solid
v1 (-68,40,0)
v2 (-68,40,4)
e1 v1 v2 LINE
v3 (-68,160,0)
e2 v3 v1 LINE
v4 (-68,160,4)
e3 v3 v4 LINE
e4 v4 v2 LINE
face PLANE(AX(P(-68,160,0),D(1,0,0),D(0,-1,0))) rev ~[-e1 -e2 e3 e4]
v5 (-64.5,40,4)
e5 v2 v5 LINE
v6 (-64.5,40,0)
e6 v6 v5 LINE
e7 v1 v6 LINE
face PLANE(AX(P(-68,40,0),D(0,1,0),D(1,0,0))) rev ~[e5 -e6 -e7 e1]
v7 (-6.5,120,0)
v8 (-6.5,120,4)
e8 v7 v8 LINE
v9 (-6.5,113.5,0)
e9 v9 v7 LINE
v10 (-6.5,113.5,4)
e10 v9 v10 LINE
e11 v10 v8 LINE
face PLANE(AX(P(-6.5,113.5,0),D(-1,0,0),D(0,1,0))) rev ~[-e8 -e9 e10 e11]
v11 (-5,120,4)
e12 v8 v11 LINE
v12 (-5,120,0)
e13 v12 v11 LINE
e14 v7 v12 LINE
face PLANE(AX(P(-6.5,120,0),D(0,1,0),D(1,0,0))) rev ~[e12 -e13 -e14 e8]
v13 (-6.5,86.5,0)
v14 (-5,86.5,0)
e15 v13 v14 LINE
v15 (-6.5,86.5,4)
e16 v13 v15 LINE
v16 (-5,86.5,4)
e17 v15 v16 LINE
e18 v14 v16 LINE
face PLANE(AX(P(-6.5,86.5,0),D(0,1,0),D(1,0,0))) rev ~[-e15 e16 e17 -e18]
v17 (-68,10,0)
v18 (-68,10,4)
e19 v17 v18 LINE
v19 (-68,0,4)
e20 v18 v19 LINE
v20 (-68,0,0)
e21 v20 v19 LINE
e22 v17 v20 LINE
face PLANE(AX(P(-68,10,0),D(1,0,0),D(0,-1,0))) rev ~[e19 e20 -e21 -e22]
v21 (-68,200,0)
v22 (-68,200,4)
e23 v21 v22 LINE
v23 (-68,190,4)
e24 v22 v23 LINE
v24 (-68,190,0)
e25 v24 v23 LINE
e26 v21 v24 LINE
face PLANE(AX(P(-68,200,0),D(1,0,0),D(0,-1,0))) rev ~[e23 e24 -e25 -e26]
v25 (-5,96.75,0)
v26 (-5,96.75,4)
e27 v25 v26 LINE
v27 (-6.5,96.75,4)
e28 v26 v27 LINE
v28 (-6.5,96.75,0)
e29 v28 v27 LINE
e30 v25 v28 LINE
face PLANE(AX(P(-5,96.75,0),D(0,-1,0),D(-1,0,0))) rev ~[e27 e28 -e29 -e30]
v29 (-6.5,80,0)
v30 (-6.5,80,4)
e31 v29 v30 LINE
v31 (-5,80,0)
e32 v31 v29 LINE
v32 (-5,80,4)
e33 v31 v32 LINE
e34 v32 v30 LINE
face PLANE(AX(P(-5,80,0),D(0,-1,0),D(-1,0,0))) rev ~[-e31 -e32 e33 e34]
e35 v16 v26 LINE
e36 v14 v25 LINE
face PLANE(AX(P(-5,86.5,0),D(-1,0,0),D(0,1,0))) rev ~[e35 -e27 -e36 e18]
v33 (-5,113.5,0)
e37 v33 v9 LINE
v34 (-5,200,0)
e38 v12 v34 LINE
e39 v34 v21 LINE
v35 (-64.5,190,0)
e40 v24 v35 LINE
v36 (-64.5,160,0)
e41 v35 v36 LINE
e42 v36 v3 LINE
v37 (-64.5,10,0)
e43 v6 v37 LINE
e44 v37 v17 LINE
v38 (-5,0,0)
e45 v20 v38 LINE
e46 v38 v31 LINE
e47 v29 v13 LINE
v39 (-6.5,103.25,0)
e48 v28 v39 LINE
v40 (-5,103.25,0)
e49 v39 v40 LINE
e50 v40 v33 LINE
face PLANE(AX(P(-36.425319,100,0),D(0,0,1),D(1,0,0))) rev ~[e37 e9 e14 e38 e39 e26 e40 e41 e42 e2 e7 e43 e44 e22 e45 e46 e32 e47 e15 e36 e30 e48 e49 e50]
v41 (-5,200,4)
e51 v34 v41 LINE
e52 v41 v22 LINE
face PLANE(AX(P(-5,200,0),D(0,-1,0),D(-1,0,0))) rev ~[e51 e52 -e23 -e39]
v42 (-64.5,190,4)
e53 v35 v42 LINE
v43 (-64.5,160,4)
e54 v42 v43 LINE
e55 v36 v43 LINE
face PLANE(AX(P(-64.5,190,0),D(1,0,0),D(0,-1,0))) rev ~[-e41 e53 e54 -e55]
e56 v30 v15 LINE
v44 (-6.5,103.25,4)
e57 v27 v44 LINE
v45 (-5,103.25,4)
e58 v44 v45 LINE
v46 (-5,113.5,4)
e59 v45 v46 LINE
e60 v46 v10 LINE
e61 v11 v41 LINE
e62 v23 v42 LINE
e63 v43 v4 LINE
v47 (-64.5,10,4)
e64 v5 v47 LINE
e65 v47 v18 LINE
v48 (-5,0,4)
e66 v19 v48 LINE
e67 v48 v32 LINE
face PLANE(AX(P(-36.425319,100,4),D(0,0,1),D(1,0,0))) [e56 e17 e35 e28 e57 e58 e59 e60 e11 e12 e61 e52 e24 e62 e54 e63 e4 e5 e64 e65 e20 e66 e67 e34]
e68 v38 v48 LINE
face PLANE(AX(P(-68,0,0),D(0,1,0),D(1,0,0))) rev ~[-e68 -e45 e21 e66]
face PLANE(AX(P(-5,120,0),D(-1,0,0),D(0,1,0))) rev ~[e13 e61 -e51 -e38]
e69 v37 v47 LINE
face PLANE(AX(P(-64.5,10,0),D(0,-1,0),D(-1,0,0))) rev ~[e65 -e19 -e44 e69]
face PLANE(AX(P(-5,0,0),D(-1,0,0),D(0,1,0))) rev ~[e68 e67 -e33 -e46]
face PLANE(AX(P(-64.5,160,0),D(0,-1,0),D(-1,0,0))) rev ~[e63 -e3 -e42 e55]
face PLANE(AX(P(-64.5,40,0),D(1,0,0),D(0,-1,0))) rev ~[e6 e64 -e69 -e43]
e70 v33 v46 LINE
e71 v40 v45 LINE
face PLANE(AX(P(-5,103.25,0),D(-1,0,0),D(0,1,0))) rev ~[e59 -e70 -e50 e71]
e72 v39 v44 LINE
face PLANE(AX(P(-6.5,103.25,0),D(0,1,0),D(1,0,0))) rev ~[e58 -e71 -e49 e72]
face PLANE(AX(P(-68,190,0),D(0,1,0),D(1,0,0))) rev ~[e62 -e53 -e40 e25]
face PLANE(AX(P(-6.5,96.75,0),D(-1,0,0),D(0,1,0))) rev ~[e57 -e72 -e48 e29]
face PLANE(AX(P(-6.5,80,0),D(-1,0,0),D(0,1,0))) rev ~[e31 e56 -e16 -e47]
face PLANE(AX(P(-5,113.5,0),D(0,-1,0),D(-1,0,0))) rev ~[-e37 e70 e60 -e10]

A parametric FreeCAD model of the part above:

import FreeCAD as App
import Part
import Sketcher
from FreeCAD import Vector
Q = App.Units.Quantity

doc = App.newDocument("Part")
params = doc.addObject("Spreadsheet::Sheet", "Params")
for row, (alias, value) in enumerate([
    ("sketch1_width", "63 mm"),
    ("sketch1_height", "80 mm"),
    ("sketch1_height2", "10 mm"),
    ("sketch1_height3", "30 mm"),
    ("sketch1_height4", "120 mm"),
    ("pad1_length", "4 mm"),
], start=1):
    params.set(f"A{row}", alias)
    params.set(f"B{row}", "=" + value)
    params.setAlias(f"B{row}", alias)

body = doc.addObject("PartDesign::Body", "Body")

sketch1 = doc.addObject("Sketcher::SketchObject", "Sketch")
body.addObject(sketch1)
sketch1.AttachmentSupport = (doc.XY_Plane, [""])
sketch1.MapMode = "FlatFace"
sketch1.addGeometry(Part.LineSegment(Vector(-5, 120, 0), Vector(-5, 200, 0)), False)
sketch1.addGeometry(Part.LineSegment(Vector(-5, 200, 0), Vector(-68, 200, 0)), False)
sketch1.addGeometry(Part.LineSegment(Vector(-68, 200, 0), Vector(-68, 190, 0)), False)
sketch1.addGeometry(Part.LineSegment(Vector(-68, 190, 0), Vector(-64.5, 190, 0)), False)
sketch1.addGeometry(Part.LineSegment(Vector(-64.5, 190, 0), Vector(-64.5, 160, 0)), False)
sketch1.addGeometry(Part.LineSegment(Vector(-64.5, 160, 0), Vector(-68, 160, 0)), False)
sketch1.addGeometry(Part.LineSegment(Vector(-68, 160, 0), Vector(-68, 40, 0)), False)
sketch1.addGeometry(Part.LineSegment(Vector(-68, 40, 0), Vector(-64.5, 40, 0)), False)
sketch1.addGeometry(Part.LineSegment(Vector(-64.5, 40, 0), Vector(-64.5, 10, 0)), False)
sketch1.addGeometry(Part.LineSegment(Vector(-64.5, 10, 0), Vector(-68, 10, 0)), False)
sketch1.addGeometry(Part.LineSegment(Vector(-68, 10, 0), Vector(-68, 0, 0)), False)
sketch1.addGeometry(Part.LineSegment(Vector(-68, 0, 0), Vector(-5, 0, 0)), False)
sketch1.addGeometry(Part.LineSegment(Vector(-5, 0, 0), Vector(-5, 80, 0)), False)
sketch1.addGeometry(Part.LineSegment(Vector(-5, 80, 0), Vector(-6.5, 80, 0)), False)
sketch1.addGeometry(Part.LineSegment(Vector(-6.5, 80, 0), Vector(-6.5, 86.5, 0)), False)
sketch1.addGeometry(Part.LineSegment(Vector(-6.5, 86.5, 0), Vector(-5, 86.5, 0)), False)
sketch1.addGeometry(Part.LineSegment(Vector(-5, 86.5, 0), Vector(-5, 96.8, 0)), False)
sketch1.addGeometry(Part.LineSegment(Vector(-5, 96.8, 0), Vector(-6.5, 96.8, 0)), False)
sketch1.addGeometry(Part.LineSegment(Vector(-6.5, 96.8, 0), Vector(-6.5, 103.2, 0)), False)
sketch1.addGeometry(Part.LineSegment(Vector(-6.5, 103.2, 0), Vector(-5, 103.2, 0)), False)
sketch1.addGeometry(Part.LineSegment(Vector(-5, 103.2, 0), Vector(-5, 113.5, 0)), False)
sketch1.addGeometry(Part.LineSegment(Vector(-5, 113.5, 0), Vector(-6.5, 113.5, 0)), False)
sketch1.addGeometry(Part.LineSegment(Vector(-6.5, 113.5, 0), Vector(-6.5, 120, 0)), False)
sketch1.addGeometry(Part.LineSegment(Vector(-6.5, 120, 0), Vector(-5, 120, 0)), False)
sketch1.addConstraint(Sketcher.Constraint("Coincident", 0, 2, 1, 1))
sketch1.addConstraint(Sketcher.Constraint("Coincident", 1, 2, 2, 1))
sketch1.addConstraint(Sketcher.Constraint("Coincident", 2, 2, 3, 1))
sketch1.addConstraint(Sketcher.Constraint("Coincident", 3, 2, 4, 1))
sketch1.addConstraint(Sketcher.Constraint("Coincident", 4, 2, 5, 1))
sketch1.addConstraint(Sketcher.Constraint("Coincident", 5, 2, 6, 1))
sketch1.addConstraint(Sketcher.Constraint("Coincident", 6, 2, 7, 1))
sketch1.addConstraint(Sketcher.Constraint("Coincident", 7, 2, 8, 1))
sketch1.addConstraint(Sketcher.Constraint("Coincident", 8, 2, 9, 1))
sketch1.addConstraint(Sketcher.Constraint("Coincident", 9, 2, 10, 1))
sketch1.addConstraint(Sketcher.Constraint("Coincident", 10, 2, 11, 1))
sketch1.addConstraint(Sketcher.Constraint("Coincident", 11, 2, 12, 1))
sketch1.addConstraint(Sketcher.Constraint("Coincident", 12, 2, 13, 1))
sketch1.addConstraint(Sketcher.Constraint("Coincident", 13, 2, 14, 1))
sketch1.addConstraint(Sketcher.Constraint("Coincident", 14, 2, 15, 1))
sketch1.addConstraint(Sketcher.Constraint("Coincident", 15, 2, 16, 1))
sketch1.addConstraint(Sketcher.Constraint("Coincident", 16, 2, 17, 1))
sketch1.addConstraint(Sketcher.Constraint("Coincident", 17, 2, 18, 1))
sketch1.addConstraint(Sketcher.Constraint("Coincident", 18, 2, 19, 1))
sketch1.addConstraint(Sketcher.Constraint("Coincident", 19, 2, 20, 1))
sketch1.addConstraint(Sketcher.Constraint("Coincident", 20, 2, 21, 1))
sketch1.addConstraint(Sketcher.Constraint("Coincident", 21, 2, 22, 1))
sketch1.addConstraint(Sketcher.Constraint("Coincident", 22, 2, 23, 1))
sketch1.addConstraint(Sketcher.Constraint("Coincident", 23, 2, 0, 1))
sketch1.addConstraint(Sketcher.Constraint("Vertical", 0))
sketch1.addConstraint(Sketcher.Constraint("Horizontal", 1))
sketch1.addConstraint(Sketcher.Constraint("Vertical", 2))
sketch1.addConstraint(Sketcher.Constraint("Horizontal", 3))
sketch1.addConstraint(Sketcher.Constraint("Vertical", 4))
sketch1.addConstraint(Sketcher.Constraint("Horizontal", 5))
sketch1.addConstraint(Sketcher.Constraint("Vertical", 6))
sketch1.addConstraint(Sketcher.Constraint("Horizontal", 7))
sketch1.addConstraint(Sketcher.Constraint("Vertical", 8))
sketch1.addConstraint(Sketcher.Constraint("Horizontal", 9))
sketch1.addConstraint(Sketcher.Constraint("Vertical", 10))
sketch1.addConstraint(Sketcher.Constraint("Horizontal", 11))
sketch1.addConstraint(Sketcher.Constraint("Vertical", 12))
sketch1.addConstraint(Sketcher.Constraint("Horizontal", 13))
sketch1.addConstraint(Sketcher.Constraint("Vertical", 14))
sketch1.addConstraint(Sketcher.Constraint("Horizontal", 15))
sketch1.addConstraint(Sketcher.Constraint("Vertical", 16))
sketch1.addConstraint(Sketcher.Constraint("Horizontal", 17))
sketch1.addConstraint(Sketcher.Constraint("Vertical", 18))
sketch1.addConstraint(Sketcher.Constraint("Horizontal", 19))
sketch1.addConstraint(Sketcher.Constraint("Vertical", 20))
sketch1.addConstraint(Sketcher.Constraint("Horizontal", 21))
sketch1.addConstraint(Sketcher.Constraint("Vertical", 22))
sketch1.addConstraint(Sketcher.Constraint("Horizontal", 23))
sketch1.addConstraint(Sketcher.Constraint("PointOnObject", 10, 2, -1))
sketch1.addConstraint(Sketcher.Constraint("Vertical", 2, 2, 5, 2))
sketch1.addConstraint(Sketcher.Constraint("Vertical", 4, 2, 7, 2))
sketch1.addConstraint(Sketcher.Constraint("Vertical", 6, 2, 9, 2))
sketch1.addConstraint(Sketcher.Constraint("Vertical", 0, 2, 11, 2))
sketch1.addConstraint(Sketcher.Constraint("Vertical", 12, 2, 15, 2))
sketch1.addConstraint(Sketcher.Constraint("Vertical", 14, 2, 17, 2))
sketch1.addConstraint(Sketcher.Constraint("Vertical", 16, 2, 19, 2))
sketch1.addConstraint(Sketcher.Constraint("Vertical", 18, 2, 21, 2))
sketch1.addConstraint(Sketcher.Constraint("Equal", 4, 8))
sketch1.addConstraint(Sketcher.Constraint("Equal", 2, 10))
sketch1.addConstraint(Sketcher.Constraint("Equal", 0, 12))
sketch1.addConstraint(Sketcher.Constraint("Equal", 14, 18))
sketch1.addConstraint(Sketcher.Constraint("Equal", 16, 20))
sketch1.addConstraint(Sketcher.Constraint("Equal", 18, 22))
sketch1.addConstraint(Sketcher.Constraint("DistanceX", 1, 2, 1, 1, Q("63 mm")))
sketch1.addConstraint(Sketcher.Constraint("DistanceY", 0, 1, 0, 2, Q("80 mm")))
sketch1.addConstraint(Sketcher.Constraint("DistanceY", 2, 2, 2, 1, Q("10 mm")))
sketch1.addConstraint(Sketcher.Constraint("DistanceY", 4, 2, 4, 1, Q("30 mm")))
sketch1.addConstraint(Sketcher.Constraint("DistanceY", 6, 2, 6, 1, Q("120 mm")))
sketch1.addConstraint(Sketcher.Constraint("DistanceX", 3, 1, 3, 2, Q("3.5 mm")))
sketch1.addConstraint(Sketcher.Constraint("DistanceX", 13, 2, 13, 1, Q("1.5 mm")))
sketch1.addConstraint(Sketcher.Constraint("DistanceY", 14, 1, 14, 2, Q("6.5 mm")))
sketch1.addConstraint(Sketcher.Constraint("DistanceX", 0, 2, -1, 1, Q("5 mm")))
sketch1.setExpression("Constraints[63]", "Params.sketch1_width")
sketch1.setExpression("Constraints[64]", "Params.sketch1_height")
sketch1.setExpression("Constraints[65]", "Params.sketch1_height2")
sketch1.setExpression("Constraints[66]", "Params.sketch1_height3")
sketch1.setExpression("Constraints[67]", "Params.sketch1_height4")
pad1 = doc.addObject("PartDesign::Pad", "Pad")
body.addObject(pad1)
pad1.Profile = sketch1
pad1.setExpression("Length", "Params.pad1_length")

doc.recompute()
